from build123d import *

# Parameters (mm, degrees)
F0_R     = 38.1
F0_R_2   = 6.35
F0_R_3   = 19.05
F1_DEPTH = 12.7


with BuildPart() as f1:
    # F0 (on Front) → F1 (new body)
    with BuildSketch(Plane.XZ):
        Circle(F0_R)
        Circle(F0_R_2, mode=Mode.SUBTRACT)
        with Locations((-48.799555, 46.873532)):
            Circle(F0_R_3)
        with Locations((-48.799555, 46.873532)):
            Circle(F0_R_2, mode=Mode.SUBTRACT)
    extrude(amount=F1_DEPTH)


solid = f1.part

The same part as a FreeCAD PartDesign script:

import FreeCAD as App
import Part
import Sketcher
from FreeCAD import Vector
Q = App.Units.Quantity

doc = App.newDocument("Part")
body = doc.addObject("PartDesign::Body", "Body")
body.AllowCompound = True

# Sketch on XZ plane
sketch1 = body.newObject("Sketcher::SketchObject", "Sketch")
sketch1.AttachmentSupport = (doc.getObject("XZ_Plane"), [""])
sketch1.MapMode = "FlatFace"
sketch1.addGeometry([
    Part.Circle(Vector(0, 0, 0), Vector(0, 0, 1), 38),
    Part.Circle(Vector(0, 0, 0), Vector(0, 0, 1), 6),
    Part.Circle(Vector(-49, 47, 0), Vector(0, 0, 1), 19),
    Part.Circle(Vector(-49, 47, 0), Vector(0, 0, 1), 6),
], False)
sketch1.addConstraint([
    Sketcher.Constraint("Coincident", 0, 3, -1, 1),
    Sketcher.Constraint("Coincident", 1, 3, -1, 1),
    Sketcher.Constraint("Coincident", 3, 3, 2, 3),
    Sketcher.Constraint("Equal", 1, 3),
    Sketcher.Constraint("Diameter", 0, Q("3 in")),
    Sketcher.Constraint("Diameter", 1, Q("0.5 in")),
    Sketcher.Constraint("Diameter", 2, Q("1.5 in")),
    Sketcher.Constraint("DistanceY", -1, 1, 2, 3, 46.873532),
    Sketcher.Constraint("DistanceX", 2, 3, -1, 1, 48.799555),
])
pad1 = body.newObject("PartDesign::Pad", "Pad")
pad1.Profile = sketch1
pad1.Length = Q("0.5 in")

doc.recompute()
